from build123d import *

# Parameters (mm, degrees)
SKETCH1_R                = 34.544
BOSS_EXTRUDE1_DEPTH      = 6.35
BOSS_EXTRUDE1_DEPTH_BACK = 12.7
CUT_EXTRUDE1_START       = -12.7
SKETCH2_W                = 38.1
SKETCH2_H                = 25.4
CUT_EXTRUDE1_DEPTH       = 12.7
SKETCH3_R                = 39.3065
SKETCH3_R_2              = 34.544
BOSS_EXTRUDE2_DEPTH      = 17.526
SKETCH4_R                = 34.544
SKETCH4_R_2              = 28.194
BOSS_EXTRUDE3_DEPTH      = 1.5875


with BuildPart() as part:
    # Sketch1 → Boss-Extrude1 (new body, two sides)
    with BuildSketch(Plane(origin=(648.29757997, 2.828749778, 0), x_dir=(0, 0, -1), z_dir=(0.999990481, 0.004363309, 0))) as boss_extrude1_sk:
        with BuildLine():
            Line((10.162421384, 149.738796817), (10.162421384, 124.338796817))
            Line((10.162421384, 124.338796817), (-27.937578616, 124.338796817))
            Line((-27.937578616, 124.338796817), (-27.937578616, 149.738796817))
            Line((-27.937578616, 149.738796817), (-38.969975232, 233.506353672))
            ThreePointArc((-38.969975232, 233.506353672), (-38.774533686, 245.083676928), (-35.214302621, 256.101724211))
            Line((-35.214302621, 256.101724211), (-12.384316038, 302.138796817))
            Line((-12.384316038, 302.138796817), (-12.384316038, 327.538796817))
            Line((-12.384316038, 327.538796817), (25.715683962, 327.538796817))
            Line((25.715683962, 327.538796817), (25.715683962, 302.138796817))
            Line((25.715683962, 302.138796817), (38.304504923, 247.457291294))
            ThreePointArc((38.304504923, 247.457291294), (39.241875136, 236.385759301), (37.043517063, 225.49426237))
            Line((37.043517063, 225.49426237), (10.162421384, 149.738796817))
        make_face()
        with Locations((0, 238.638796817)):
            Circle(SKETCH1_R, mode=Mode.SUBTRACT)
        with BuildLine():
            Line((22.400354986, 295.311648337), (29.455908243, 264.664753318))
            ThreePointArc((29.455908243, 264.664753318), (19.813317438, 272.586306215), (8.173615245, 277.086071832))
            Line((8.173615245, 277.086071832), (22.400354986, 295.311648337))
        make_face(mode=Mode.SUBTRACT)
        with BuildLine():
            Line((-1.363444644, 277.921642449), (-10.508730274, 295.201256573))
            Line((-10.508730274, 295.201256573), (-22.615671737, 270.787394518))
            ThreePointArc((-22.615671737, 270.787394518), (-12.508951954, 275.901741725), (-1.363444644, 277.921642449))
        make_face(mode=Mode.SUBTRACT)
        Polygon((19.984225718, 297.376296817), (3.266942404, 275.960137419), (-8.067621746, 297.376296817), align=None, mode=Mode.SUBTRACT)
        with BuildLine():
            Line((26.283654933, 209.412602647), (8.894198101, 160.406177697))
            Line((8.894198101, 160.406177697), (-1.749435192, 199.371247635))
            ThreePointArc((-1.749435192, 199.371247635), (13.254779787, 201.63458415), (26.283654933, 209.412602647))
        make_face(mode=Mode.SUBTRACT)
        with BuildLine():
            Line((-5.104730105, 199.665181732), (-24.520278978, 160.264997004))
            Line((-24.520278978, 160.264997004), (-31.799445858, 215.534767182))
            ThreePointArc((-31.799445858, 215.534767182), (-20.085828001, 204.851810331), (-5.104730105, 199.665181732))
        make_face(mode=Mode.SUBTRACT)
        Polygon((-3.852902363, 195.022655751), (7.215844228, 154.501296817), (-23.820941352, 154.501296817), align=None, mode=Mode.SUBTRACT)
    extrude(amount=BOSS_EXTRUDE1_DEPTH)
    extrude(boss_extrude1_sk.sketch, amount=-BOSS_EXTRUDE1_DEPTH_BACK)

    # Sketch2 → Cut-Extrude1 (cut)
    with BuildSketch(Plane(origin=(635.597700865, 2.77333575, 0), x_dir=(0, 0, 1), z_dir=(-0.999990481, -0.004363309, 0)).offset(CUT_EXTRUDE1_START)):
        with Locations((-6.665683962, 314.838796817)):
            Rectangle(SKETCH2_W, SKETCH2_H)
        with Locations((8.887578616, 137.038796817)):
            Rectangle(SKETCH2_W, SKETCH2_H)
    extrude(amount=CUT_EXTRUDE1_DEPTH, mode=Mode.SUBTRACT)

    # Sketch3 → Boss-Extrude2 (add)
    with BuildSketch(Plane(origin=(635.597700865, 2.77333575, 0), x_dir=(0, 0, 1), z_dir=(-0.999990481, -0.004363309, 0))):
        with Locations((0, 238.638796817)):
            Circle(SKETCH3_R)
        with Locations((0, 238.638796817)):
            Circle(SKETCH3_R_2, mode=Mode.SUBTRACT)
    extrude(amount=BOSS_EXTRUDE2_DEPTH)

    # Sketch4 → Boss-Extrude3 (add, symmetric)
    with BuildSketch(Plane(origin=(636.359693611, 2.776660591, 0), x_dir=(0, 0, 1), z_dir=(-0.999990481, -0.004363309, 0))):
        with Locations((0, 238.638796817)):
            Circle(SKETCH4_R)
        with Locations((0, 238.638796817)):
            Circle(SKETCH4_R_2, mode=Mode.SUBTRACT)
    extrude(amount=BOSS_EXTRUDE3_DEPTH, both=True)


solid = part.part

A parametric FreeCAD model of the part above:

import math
import FreeCAD as App
import Part
import Sketcher

V = App.Vector
Q = App.Units.Quantity

doc = App.newDocument("Part")
body = doc.addObject("PartDesign::Body", "Body")

# Sketch on an angled plane
sketch1 = body.newObject("Sketcher::SketchObject", "Sketch")
sketch1.Placement = App.Placement(V(648.29758, 2.82875, 0), App.Rotation(V(0, 0, -1), V(-0.004363309, 0.999990481, 0), V(0.999990481, 0.004363309, 0), "ZXY"))
sketch1.addGeometry(Part.LineSegment(V(10, 124, 0), V(10, 150, 0)), False)
sketch1.addGeometry(Part.LineSegment(V(10, 150, 0), V(37, 225, 0)), False)
sketch1.addGeometry(Part.ArcOfCircle(Part.Circle(V(0, 239, 0), V(0, 0, 1), 39), math.radians(-20), math.radians(13)), False)
sketch1.addGeometry(Part.LineSegment(V(38, 247, 0), V(26, 302, 0)), False)
sketch1.addGeometry(Part.LineSegment(V(26, 302, 0), V(26, 328, 0)), False)
sketch1.addGeometry(Part.LineSegment(V(26, 328, 0), V(-12, 328, 0)), False)
sketch1.addGeometry(Part.LineSegment(V(-12, 328, 0), V(-12, 302, 0)), False)
sketch1.addGeometry(Part.LineSegment(V(-12, 302, 0), V(-35, 256, 0)), False)
sketch1.addGeometry(Part.ArcOfCircle(Part.Circle(V(0, 239, 0), V(0, 0, 1), 39), math.radians(154), math.radians(188)), False)
sketch1.addGeometry(Part.LineSegment(V(-39, 234, 0), V(-28, 150, 0)), False)
sketch1.addGeometry(Part.LineSegment(V(-28, 150, 0), V(-28, 124, 0)), False)
sketch1.addGeometry(Part.LineSegment(V(-28, 124, 0), V(10, 124, 0)), False)
sketch1.addGeometry(Part.LineSegment(V(26, 209, 0), V(9, 160, 0)), False)
sketch1.addGeometry(Part.LineSegment(V(9, 160, 0), V(-2, 199, 0)), False)
sketch1.addGeometry(Part.ArcOfCircle(Part.Circle(V(0, 239, 0), V(0, 0, 1), 39), math.radians(-93), math.radians(-48)), False)
sketch1.addGeometry(Part.LineSegment(V(-4, 195, 0), V(7, 155, 0)), False)
sketch1.addGeometry(Part.LineSegment(V(7, 155, 0), V(-24, 155, 0)), False)
sketch1.addGeometry(Part.LineSegment(V(-24, 155, 0), V(-4, 195, 0)), False)
sketch1.addGeometry(Part.LineSegment(V(-5, 200, 0), V(-25, 160, 0)), False)
sketch1.addGeometry(Part.LineSegment(V(-25, 160, 0), V(-32, 216, 0)), False)
sketch1.addGeometry(Part.ArcOfCircle(Part.Circle(V(0, 239, 0), V(0, 0, 1), 39), math.radians(-144), math.radians(-97)), False)
sketch1.addGeometry(Part.LineSegment(V(22, 295, 0), V(29, 265, 0)), False)
sketch1.addGeometry(Part.ArcOfCircle(Part.Circle(V(0, 239, 0), V(0, 0, 1), 39), math.radians(41), math.radians(78)), False)
sketch1.addGeometry(Part.LineSegment(V(8, 277, 0), V(22, 295, 0)), False)
sketch1.addGeometry(Part.LineSegment(V(20, 297, 0), V(3, 276, 0)), False)
sketch1.addGeometry(Part.LineSegment(V(3, 276, 0), V(-8, 297, 0)), False)
sketch1.addGeometry(Part.LineSegment(V(-8, 297, 0), V(20, 297, 0)), False)
sketch1.addGeometry(Part.Circle(V(0, 239, 0), V(0, 0, 1), 35), False)
sketch1.addGeometry(Part.ArcOfCircle(Part.Circle(V(0, 239, 0), V(0, 0, 1), 39), math.radians(92), math.radians(125)), False)
sketch1.addGeometry(Part.LineSegment(V(-23, 271, 0), V(-11, 295, 0)), False)
sketch1.addGeometry(Part.LineSegment(V(-11, 295, 0), V(-1, 278, 0)), False)
sketch1.addConstraint(Sketcher.Constraint("Coincident", 0, 2, 1, 1))
sketch1.addConstraint(Sketcher.Constraint("Tangent", 1, 2, 2, 1))
sketch1.addConstraint(Sketcher.Constraint("Tangent", 2, 2, 3, 1))
sketch1.addConstraint(Sketcher.Constraint("Coincident", 3, 2, 4, 1))
sketch1.addConstraint(Sketcher.Constraint("Coincident", 4, 2, 5, 1))
sketch1.addConstraint(Sketcher.Constraint("Coincident", 5, 2, 6, 1))
sketch1.addConstraint(Sketcher.Constraint("Coincident", 6, 2, 7, 1))
sketch1.addConstraint(Sketcher.Constraint("Tangent", 7, 2, 8, 1))
sketch1.addConstraint(Sketcher.Constraint("Tangent", 8, 2, 9, 1))
sketch1.addConstraint(Sketcher.Constraint("Coincident", 9, 2, 10, 1))
sketch1.addConstraint(Sketcher.Constraint("Coincident", 10, 2, 11, 1))
sketch1.addConstraint(Sketcher.Constraint("Coincident", 11, 2, 0, 1))
sketch1.addConstraint(Sketcher.Constraint("Coincident", 12, 2, 13, 1))
sketch1.addConstraint(Sketcher.Constraint("Coincident", 13, 2, 14, 1))
sketch1.addConstraint(Sketcher.Constraint("Coincident", 14, 2, 12, 1))
sketch1.addConstraint(Sketcher.Constraint("Coincident", 15, 2, 16, 1))
sketch1.addConstraint(Sketcher.Constraint("Coincident", 16, 2, 17, 1))
sketch1.addConstraint(Sketcher.Constraint("Coincident", 17, 2, 15, 1))
sketch1.addConstraint(Sketcher.Constraint("Coincident", 18, 2, 19, 1))
sketch1.addConstraint(Sketcher.Constraint("Coincident", 19, 2, 20, 1))
sketch1.addConstraint(Sketcher.Constraint("Coincident", 20, 2, 18, 1))
sketch1.addConstraint(Sketcher.Constraint("Coincident", 21, 2, 22, 1))
sketch1.addConstraint(Sketcher.Constraint("Coincident", 22, 2, 23, 1))
sketch1.addConstraint(Sketcher.Constraint("Coincident", 23, 2, 21, 1))
sketch1.addConstraint(Sketcher.Constraint("Coincident", 24, 2, 25, 1))
sketch1.addConstraint(Sketcher.Constraint("Coincident", 25, 2, 26, 1))
sketch1.addConstraint(Sketcher.Constraint("Coincident", 26, 2, 24, 1))
sketch1.addConstraint(Sketcher.Constraint("Coincident", 28, 2, 29, 1))
sketch1.addConstraint(Sketcher.Constraint("Coincident", 29, 2, 30, 1))
sketch1.addConstraint(Sketcher.Constraint("Coincident", 30, 2, 28, 1))
sketch1.addConstraint(Sketcher.Constraint("Vertical", 0))
sketch1.addConstraint(Sketcher.Constraint("Vertical", 4))
sketch1.addConstraint(Sketcher.Constraint("Horizontal", 5))
sketch1.addConstraint(Sketcher.Constraint("Vertical", 6))
sketch1.addConstraint(Sketcher.Constraint("Vertical", 10))
sketch1.addConstraint(Sketcher.Constraint("Horizontal", 11))
sketch1.addConstraint(Sketcher.Constraint("Horizontal", 16))
sketch1.addConstraint(Sketcher.Constraint("Horizontal", 26))
sketch1.addConstraint(Sketcher.Constraint("Coincident", 8, 3, 2, 3))
sketch1.addConstraint(Sketcher.Constraint("Coincident", 14, 3, 2, 3))
sketch1.addConstraint(Sketcher.Constraint("Coincident", 20, 3, 2, 3))
sketch1.addConstraint(Sketcher.Constraint("Coincident", 22, 3, 2, 3))
sketch1.addConstraint(Sketcher.Constraint("Coincident", 27, 3, 2, 3))
sketch1.addConstraint(Sketcher.Constraint("Coincident", 28, 3, 2, 3))
sketch1.addConstraint(Sketcher.Constraint("Equal", 2, 8))
sketch1.addConstraint(Sketcher.Constraint("Equal", 8, 14))
sketch1.addConstraint(Sketcher.Constraint("Equal", 14, 20))
sketch1.addConstraint(Sketcher.Constraint("Equal", 20, 22))
sketch1.addConstraint(Sketcher.Constraint("Equal", 22, 28))
sketch1.addConstraint(Sketcher.Constraint("PointOnObject", 2, 3, -2))
sketch1.addConstraint(Sketcher.Constraint("Parallel", 1, 12))
sketch1.addConstraint(Sketcher.Constraint("Parallel", 13, 15))
sketch1.addConstraint(Sketcher.Constraint("Parallel", 17, 18))
sketch1.addConstraint(Sketcher.Constraint("Parallel", 9, 19))
sketch1.addConstraint(Sketcher.Constraint("Parallel", 3, 21))
sketch1.addConstraint(Sketcher.Constraint("Parallel", 23, 24))
sketch1.addConstraint(Sketcher.Constraint("Parallel", 7, 29))
sketch1.addConstraint(Sketcher.Constraint("Parallel", 25, 30))
sketch1.addConstraint(Sketcher.Constraint("Horizontal", 3, 2, 6, 2))
sketch1.addConstraint(Sketcher.Constraint("Horizontal", 0, 2, 9, 2))
sketch1.addConstraint(Sketcher.Constraint("Equal", 5, 11))
sketch1.addConstraint(Sketcher.Constraint("Equal", 0, 4))
sketch1.addConstraint(Sketcher.Constraint("Diameter", 27, Q("2.72 in")))
sketch1.addConstraint(Sketcher.Constraint("DistanceY", 0, 1, 0, 2, Q("1 in")))
sketch1.addConstraint(Sketcher.Constraint("DistanceX", 5, 2, 5, 1, Q("1.5 in")))
sketch1.addConstraint(Sketcher.Constraint("Radius", 2, Q("1.5475 in")))
sketch1.addConstraint(Sketcher.Constraint("DistanceY", 0, 2, 28, 3, Q("3.5 in")))
sketch1.addConstraint(Sketcher.Constraint("DistanceY", 8, 3, 3, 2, Q("2.5 in")))
sketch1.addConstraint(Sketcher.Constraint("DistanceY", 0, 2, 15, 2, Q("0.1875 in")))
sketch1.addConstraint(Sketcher.Constraint("DistanceY", 25, 2, 6, 2, Q("0.1875 in")))
sketch1.addConstraint(Sketcher.Constraint("DistanceY", 21, 2, 24, 2, Q("0.4447002 in")))
sketch1.addConstraint(Sketcher.Constraint("Distance", 3, Q("56.111901 mm")))
sketch1.addConstraint(Sketcher.Constraint("DistanceX", -1, 1, 12, 2, Q("8.894198 mm")))
sketch1.addConstraint(Sketcher.Constraint("DistanceX", 17, 2, 12, 2, Q("12.7471 mm")))
sketch1.addConstraint(Sketcher.Constraint("DistanceY", 16, 2, 18, 2, Q("5.7637 mm")))
sketch1.addConstraint(Sketcher.Constraint("DistanceX", 9, 2, 18, 2, Q("3.4173 mm")))
sketch1.addConstraint(Sketcher.Constraint("Distance", 9, Q("84.490931 mm")))
sketch1.addConstraint(Sketcher.Constraint("Distance", 12, Q("52.00022 mm")))
sketch1.addConstraint(Sketcher.Constraint("Distance", 13, Q("40.392618 mm")))
sketch1.addConstraint(Sketcher.Constraint("Distance", 18, Q("43.924231 mm")))
sketch1.addConstraint(Sketcher.Constraint("Distance", 23, Q("23.120808 mm")))
sketch1.addConstraint(Sketcher.Constraint("Distance", 30, Q("19.550481 mm")))
sketch1.addConstraint(Sketcher.Constraint("DistanceX", 16, 2, 16, 1, Q("31.036786 mm")))
sketch1.addConstraint(Sketcher.Constraint("DistanceX", 26, 1, 26, 2, Q("28.051847 mm")))
sketch1.addConstraint(Sketcher.Constraint("DistanceY", -1, 1, 2, 2, Q("247.457291 mm")))
sketch1.addConstraint(Sketcher.Constraint("DistanceX", -1, 1, 21, 2, Q("29.455908 mm")))
sketch1.addConstraint(Sketcher.Constraint("DistanceY", -1, 1, 22, 2, Q("277.086072 mm")))
sketch1.addConstraint(Sketcher.Constraint("DistanceX", 25, 2, -1, 1, Q("8.067622 mm")))
sketch1.addConstraint(Sketcher.Constraint("DistanceX", 28, 2, -1, 1, Q("22.615672 mm")))
pad1 = body.newObject("PartDesign::Pad", "Pad")
pad1.Profile = sketch1
pad1.Type = "TwoLengths"
pad1.Length = Q("0.25 in")
pad1.Length2 = Q("0.5 in")

# Sketch on an angled plane
sketch2 = body.newObject("Sketcher::SketchObject", "Sketch001")
sketch2.Placement = App.Placement(V(648.29758, 2.82875, 0), App.Rotation(V(0, 0, 1), V(-0.004363309, 0.999990481, 0), V(-0.999990481, -0.004363309, 0), "ZXY"))
sketch2.addGeometry(Part.LineSegment(V(-26, 328, 0), V(-26, 302, 0)), False)
sketch2.addGeometry(Part.LineSegment(V(-26, 302, 0), V(12, 302, 0)), False)
sketch2.addGeometry(Part.LineSegment(V(12, 302, 0), V(12, 328, 0)), False)
sketch2.addGeometry(Part.LineSegment(V(12, 328, 0), V(-26, 328, 0)), False)
sketch2.addGeometry(Part.LineSegment(V(-10, 150, 0), V(-10, 124, 0)), False)
sketch2.addGeometry(Part.LineSegment(V(-10, 124, 0), V(28, 124, 0)), False)
sketch2.addGeometry(Part.LineSegment(V(28, 124, 0), V(28, 150, 0)), False)
sketch2.addGeometry(Part.LineSegment(V(28, 150, 0), V(-10, 150, 0)), False)
sketch2.addConstraint(Sketcher.Constraint("Coincident", 0, 2, 1, 1))
sketch2.addConstraint(Sketcher.Constraint("Coincident", 1, 2, 2, 1))
sketch2.addConstraint(Sketcher.Constraint("Coincident", 2, 2, 3, 1))
sketch2.addConstraint(Sketcher.Constraint("Coincident", 3, 2, 0, 1))
sketch2.addConstraint(Sketcher.Constraint("Coincident", 4, 2, 5, 1))
sketch2.addConstraint(Sketcher.Constraint("Coincident", 5, 2, 6, 1))
sketch2.addConstraint(Sketcher.Constraint("Coincident", 6, 2, 7, 1))
sketch2.addConstraint(Sketcher.Constraint("Coincident", 7, 2, 4, 1))
sketch2.addConstraint(Sketcher.Constraint("Vertical", 0))
sketch2.addConstraint(Sketcher.Constraint("Horizontal", 1))
sketch2.addConstraint(Sketcher.Constraint("Vertical", 2))
sketch2.addConstraint(Sketcher.Constraint("Horizontal", 3))
sketch2.addConstraint(Sketcher.Constraint("Vertical", 4))
sketch2.addConstraint(Sketcher.Constraint("Horizontal", 5))
sketch2.addConstraint(Sketcher.Constraint("Vertical", 6))
sketch2.addConstraint(Sketcher.Constraint("Horizontal", 7))
sketch2.addConstraint(Sketcher.Constraint("Equal", 3, 5))
sketch2.addConstraint(Sketcher.Constraint("Equal", 2, 4))
sketch2.addConstraint(Sketcher.Constraint("DistanceY", 0, 2, 0, 1, Q("1 in")))
sketch2.addConstraint(Sketcher.Constraint("DistanceX", 1, 1, 1, 2, Q("1.5 in")))
sketch2.addConstraint(Sketcher.Constraint("DistanceY", 4, 2, 0, 2, Q("7 in")))
sketch2.addConstraint(Sketcher.Constraint("DistanceX", 4, 2, -1, 1, Q("10.162421 mm")))
sketch2.addConstraint(Sketcher.Constraint("DistanceX", 0, 2, -1, 1, Q("25.715684 mm")))
sketch2.addConstraint(Sketcher.Constraint("DistanceY", -1, 1, 0, 2, Q("302.138797 mm")))
pocket1 = body.newObject("PartDesign::Pocket", "Pocket")
pocket1.Profile = sketch2
pocket1.Length = Q("0.5 in")
pocket1.Reversed = True

# Sketch on an angled plane
sketch3 = body.newObject("Sketcher::SketchObject", "Sketch002")
sketch3.Placement = App.Placement(V(635.597701, 2.773336, 0), App.Rotation(V(0, 0, 1), V(-0.004363309, 0.999990481, 0), V(-0.999990481, -0.004363309, 0), "ZXY"))
sketch3.addGeometry(Part.Circle(V(0, 239, 0), V(0, 0, 1), 39), False)
sketch3.addGeometry(Part.Circle(V(0, 239, 0), V(0, 0, 1), 35), False)
sketch3.addConstraint(Sketcher.Constraint("Coincident", 1, 3, 0, 3))
sketch3.addConstraint(Sketcher.Constraint("PointOnObject", 0, 3, -2))
sketch3.addConstraint(Sketcher.Constraint("Diameter", 1, Q("2.72 in")))
sketch3.addConstraint(Sketcher.Constraint("Diameter", 0, Q("3.095 in")))
sketch3.addConstraint(Sketcher.Constraint("DistanceY", -1, 1, 0, 3, Q("238.638797 mm")))
pad2 = body.newObject("PartDesign::Pad", "Pad001")
pad2.Profile = sketch3
pad2.Length = Q("0.69 in")

# Sketch on an angled plane
sketch4 = body.newObject("Sketcher::SketchObject", "Sketch003")
sketch4.Placement = App.Placement(V(636.359694, 2.776661, 0), App.Rotation(V(0, 0, 1), V(-0.004363309, 0.999990481, 0), V(-0.999990481, -0.004363309, 0), "ZXY"))
sketch4.addGeometry(Part.Circle(V(0, 239, 0), V(0, 0, 1), 35), False)
sketch4.addGeometry(Part.Circle(V(0, 239, 0), V(0, 0, 1), 28), False)
sketch4.addConstraint(Sketcher.Constraint("Coincident", 1, 3, 0, 3))
sketch4.addConstraint(Sketcher.Constraint("PointOnObject", 0, 3, -2))
sketch4.addConstraint(Sketcher.Constraint("Diameter", 0, Q("2.72 in")))
sketch4.addConstraint(Sketcher.Constraint("Diameter", 1, Q("2.22 in")))
sketch4.addConstraint(Sketcher.Constraint("DistanceY", -1, 1, 0, 3, Q("238.638797 mm")))
pad3 = body.newObject("PartDesign::Pad", "Pad002")
pad3.Profile = sketch4
pad3.Length = Q("0.125 in")
pad3.Midplane = True

doc.recompute()
